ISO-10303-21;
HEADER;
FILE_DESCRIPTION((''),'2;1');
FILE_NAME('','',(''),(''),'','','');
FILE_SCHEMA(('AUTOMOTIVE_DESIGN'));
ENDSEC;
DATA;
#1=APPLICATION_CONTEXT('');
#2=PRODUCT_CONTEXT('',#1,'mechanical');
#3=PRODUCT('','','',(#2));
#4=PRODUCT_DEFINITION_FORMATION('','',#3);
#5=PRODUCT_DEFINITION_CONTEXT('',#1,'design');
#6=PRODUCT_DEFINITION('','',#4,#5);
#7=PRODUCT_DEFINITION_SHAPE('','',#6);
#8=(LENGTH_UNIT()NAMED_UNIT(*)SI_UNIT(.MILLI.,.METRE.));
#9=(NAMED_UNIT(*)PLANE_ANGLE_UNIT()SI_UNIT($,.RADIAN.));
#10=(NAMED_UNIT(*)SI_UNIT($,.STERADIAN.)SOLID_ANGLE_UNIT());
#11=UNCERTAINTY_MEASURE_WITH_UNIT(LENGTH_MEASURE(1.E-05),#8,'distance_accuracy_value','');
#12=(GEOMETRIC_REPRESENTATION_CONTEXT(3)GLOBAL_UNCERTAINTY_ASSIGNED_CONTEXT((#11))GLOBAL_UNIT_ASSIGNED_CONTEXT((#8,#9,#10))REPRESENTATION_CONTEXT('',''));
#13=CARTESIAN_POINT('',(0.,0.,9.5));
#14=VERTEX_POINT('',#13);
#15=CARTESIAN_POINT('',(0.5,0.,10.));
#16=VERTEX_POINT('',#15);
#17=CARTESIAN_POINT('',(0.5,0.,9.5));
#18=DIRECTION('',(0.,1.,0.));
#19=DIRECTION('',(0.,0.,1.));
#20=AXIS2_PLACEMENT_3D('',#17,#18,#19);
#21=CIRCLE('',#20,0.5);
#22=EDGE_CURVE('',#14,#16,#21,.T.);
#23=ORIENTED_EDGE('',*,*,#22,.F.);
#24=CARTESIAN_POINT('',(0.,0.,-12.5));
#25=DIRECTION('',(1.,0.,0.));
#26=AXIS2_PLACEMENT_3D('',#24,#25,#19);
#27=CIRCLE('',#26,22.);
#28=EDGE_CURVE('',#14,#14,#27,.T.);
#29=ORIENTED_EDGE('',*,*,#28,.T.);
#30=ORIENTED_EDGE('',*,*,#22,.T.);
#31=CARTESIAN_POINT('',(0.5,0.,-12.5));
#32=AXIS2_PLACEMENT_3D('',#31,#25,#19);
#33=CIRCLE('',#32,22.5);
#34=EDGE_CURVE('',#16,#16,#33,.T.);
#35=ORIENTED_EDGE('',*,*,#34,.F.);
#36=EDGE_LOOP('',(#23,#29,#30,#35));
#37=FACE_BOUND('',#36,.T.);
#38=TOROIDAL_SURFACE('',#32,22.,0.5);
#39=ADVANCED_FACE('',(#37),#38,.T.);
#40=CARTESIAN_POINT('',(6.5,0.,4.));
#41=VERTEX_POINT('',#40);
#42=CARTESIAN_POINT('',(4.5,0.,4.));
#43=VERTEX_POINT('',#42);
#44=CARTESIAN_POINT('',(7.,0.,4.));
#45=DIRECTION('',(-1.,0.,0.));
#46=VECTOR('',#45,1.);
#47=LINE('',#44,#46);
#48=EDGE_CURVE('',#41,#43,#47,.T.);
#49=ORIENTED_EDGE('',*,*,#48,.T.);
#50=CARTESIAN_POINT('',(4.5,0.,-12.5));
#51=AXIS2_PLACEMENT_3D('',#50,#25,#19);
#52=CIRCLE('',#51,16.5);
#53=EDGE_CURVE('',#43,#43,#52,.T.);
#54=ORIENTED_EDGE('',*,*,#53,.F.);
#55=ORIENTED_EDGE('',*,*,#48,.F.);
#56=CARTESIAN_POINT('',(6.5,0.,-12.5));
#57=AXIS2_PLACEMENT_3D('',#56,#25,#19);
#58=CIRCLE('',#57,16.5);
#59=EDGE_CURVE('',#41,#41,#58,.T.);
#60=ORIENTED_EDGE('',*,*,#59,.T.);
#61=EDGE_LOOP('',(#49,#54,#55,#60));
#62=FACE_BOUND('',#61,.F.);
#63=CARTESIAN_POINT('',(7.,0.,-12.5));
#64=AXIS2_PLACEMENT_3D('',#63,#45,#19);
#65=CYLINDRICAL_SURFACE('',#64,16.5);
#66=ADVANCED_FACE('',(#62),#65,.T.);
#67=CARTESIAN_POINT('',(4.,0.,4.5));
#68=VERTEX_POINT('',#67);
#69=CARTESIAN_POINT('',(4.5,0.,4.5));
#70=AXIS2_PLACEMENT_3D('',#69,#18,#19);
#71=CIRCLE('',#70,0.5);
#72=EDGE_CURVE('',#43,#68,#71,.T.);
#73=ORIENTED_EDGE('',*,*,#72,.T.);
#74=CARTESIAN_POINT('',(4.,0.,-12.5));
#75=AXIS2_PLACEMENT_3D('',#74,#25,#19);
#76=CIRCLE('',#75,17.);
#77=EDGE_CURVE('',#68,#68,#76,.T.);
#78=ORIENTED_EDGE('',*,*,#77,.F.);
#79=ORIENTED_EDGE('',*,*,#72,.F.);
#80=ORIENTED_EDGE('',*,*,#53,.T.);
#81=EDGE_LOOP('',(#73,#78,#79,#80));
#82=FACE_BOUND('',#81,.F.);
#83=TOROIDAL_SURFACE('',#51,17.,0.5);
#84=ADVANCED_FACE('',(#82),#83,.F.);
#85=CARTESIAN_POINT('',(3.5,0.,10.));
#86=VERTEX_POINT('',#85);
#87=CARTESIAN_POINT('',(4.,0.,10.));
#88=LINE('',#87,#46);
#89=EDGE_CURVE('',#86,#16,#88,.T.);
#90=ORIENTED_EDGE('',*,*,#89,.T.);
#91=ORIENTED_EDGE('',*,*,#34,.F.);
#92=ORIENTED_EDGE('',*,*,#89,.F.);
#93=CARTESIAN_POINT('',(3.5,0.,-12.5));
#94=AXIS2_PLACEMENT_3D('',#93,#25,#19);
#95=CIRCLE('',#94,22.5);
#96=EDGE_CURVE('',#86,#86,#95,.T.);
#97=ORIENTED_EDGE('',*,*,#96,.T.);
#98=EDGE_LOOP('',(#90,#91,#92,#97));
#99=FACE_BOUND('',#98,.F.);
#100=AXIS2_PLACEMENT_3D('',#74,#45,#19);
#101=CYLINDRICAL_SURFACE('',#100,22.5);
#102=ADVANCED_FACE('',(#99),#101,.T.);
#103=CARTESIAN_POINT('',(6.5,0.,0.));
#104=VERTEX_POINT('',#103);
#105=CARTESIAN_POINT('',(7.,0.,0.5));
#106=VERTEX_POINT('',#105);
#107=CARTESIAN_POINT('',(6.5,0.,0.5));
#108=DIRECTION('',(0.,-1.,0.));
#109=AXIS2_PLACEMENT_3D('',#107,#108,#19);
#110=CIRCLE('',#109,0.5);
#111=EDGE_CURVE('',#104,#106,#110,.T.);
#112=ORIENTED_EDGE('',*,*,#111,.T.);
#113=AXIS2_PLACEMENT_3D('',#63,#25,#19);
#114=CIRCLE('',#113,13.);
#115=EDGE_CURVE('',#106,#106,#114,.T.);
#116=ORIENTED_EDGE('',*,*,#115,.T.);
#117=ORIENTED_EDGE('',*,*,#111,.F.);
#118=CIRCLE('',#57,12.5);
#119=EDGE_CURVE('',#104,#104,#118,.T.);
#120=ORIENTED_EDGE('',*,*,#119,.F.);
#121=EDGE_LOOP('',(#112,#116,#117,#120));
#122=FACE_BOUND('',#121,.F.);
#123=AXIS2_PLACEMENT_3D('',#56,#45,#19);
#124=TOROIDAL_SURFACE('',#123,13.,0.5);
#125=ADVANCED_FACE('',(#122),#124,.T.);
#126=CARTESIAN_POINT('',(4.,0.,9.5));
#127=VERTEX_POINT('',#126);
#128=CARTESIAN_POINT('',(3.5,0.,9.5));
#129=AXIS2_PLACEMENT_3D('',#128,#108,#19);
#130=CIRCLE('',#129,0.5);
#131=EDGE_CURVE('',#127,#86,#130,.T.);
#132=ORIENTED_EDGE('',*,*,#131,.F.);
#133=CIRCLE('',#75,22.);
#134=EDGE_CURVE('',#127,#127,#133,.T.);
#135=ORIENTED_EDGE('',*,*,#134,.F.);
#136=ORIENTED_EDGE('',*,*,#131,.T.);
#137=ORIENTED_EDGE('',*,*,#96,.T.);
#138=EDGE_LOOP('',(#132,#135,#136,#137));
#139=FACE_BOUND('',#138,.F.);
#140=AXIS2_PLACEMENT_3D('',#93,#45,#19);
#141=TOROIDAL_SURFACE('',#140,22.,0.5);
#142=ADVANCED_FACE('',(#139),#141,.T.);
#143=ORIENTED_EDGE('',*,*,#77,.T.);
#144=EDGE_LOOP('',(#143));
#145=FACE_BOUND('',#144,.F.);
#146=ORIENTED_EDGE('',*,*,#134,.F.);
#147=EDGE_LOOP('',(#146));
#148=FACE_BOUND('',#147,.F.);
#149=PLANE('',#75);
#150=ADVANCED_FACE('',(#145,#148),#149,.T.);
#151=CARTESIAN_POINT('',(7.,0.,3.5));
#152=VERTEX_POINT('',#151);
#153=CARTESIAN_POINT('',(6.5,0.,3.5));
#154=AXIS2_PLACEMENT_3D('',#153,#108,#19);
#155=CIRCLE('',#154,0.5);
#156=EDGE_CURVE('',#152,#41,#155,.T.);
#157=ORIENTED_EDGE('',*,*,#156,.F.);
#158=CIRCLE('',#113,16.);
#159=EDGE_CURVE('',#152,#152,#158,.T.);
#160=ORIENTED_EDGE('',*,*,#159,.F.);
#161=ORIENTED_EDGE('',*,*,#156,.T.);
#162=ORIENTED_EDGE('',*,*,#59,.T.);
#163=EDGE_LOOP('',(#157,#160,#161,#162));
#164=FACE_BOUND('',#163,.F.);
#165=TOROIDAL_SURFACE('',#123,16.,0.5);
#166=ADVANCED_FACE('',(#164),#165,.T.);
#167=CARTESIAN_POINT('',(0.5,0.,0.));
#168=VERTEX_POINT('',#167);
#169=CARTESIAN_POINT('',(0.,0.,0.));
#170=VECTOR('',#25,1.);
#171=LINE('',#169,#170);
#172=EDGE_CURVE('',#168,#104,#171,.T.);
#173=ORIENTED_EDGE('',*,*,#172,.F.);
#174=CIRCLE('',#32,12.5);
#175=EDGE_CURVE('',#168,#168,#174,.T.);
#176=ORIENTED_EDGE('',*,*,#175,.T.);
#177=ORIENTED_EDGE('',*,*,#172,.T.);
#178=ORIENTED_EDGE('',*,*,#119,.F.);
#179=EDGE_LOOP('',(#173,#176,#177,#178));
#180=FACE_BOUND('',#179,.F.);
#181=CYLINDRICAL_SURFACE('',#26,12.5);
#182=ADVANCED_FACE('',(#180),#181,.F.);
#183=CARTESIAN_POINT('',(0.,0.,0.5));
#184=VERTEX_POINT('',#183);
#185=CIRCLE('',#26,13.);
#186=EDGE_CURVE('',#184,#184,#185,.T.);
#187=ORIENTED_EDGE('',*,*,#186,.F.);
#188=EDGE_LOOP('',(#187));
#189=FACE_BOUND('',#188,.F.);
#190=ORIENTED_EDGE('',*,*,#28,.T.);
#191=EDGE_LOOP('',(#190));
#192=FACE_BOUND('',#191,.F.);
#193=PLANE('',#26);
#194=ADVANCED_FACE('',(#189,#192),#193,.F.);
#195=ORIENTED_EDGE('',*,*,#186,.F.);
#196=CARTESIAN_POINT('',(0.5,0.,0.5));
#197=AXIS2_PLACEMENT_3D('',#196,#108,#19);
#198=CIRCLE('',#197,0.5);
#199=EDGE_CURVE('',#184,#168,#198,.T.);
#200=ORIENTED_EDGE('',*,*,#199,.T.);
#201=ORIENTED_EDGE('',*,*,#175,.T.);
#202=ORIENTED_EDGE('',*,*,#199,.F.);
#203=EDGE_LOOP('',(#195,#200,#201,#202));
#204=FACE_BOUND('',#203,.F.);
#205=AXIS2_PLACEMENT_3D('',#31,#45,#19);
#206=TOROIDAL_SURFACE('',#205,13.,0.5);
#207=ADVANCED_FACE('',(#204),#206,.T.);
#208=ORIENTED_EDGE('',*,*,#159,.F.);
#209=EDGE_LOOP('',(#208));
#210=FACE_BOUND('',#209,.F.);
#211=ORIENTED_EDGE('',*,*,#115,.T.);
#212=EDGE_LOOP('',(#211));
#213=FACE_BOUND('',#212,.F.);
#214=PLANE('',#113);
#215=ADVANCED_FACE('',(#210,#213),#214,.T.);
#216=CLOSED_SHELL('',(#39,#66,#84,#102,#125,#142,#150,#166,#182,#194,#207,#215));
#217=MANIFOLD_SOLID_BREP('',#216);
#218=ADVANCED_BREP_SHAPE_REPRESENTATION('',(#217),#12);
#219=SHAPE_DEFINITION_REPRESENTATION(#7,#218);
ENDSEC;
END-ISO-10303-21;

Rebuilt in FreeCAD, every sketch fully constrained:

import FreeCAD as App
import Part
import Sketcher
from FreeCAD import Vector
Q = App.Units.Quantity


def edges_at(feature, points):
    """Names of the edges that pass closest to the given points."""
    edges = feature.Shape.Edges
    near = lambda p: min(range(len(edges)), key=lambda i: edges[i].distToShape(Part.Vertex(*p))[0])
    return sorted({f"Edge{near(p) + 1}" for p in points})


def add_polygon(sketch, points):
    """Adds a closed chain of lines whose ends are joined by coincident constraints."""
    first, n = sketch.GeometryCount, len(points)
    for a, b in zip(points, points[1:] + points[:1]):
        sketch.addGeometry(Part.LineSegment(App.Vector(*a, 0), App.Vector(*b, 0)), False)
    for i in range(n):
        sketch.addConstraint(Sketcher.Constraint("Coincident", first + i, 2, first + (i + 1) % n, 1))

doc = App.newDocument("Part")
body = doc.addObject("PartDesign::Body", "Body")

# Sketch on XZ plane
sketch1 = body.newObject("Sketcher::SketchObject", "Sketch")
sketch1.AttachmentSupport = (doc.getObject("XZ_Plane"), [""])
sketch1.MapMode = "FlatFace"
add_polygon(sketch1, [(0, 10), (0, 0), (7, 0), (7, 4), (4, 4), (4, 10)])  # lines 0-5
sketch1.addGeometry(Part.LineSegment(Vector(0, -12.5, 0), Vector(7, -12.5, 0)), True)  # axis
sketch1.addConstraint([
    Sketcher.Constraint("Vertical", 0),
    Sketcher.Constraint("Horizontal", 1),
    Sketcher.Constraint("Vertical", 2),
    Sketcher.Constraint("Horizontal", 3),
    Sketcher.Constraint("Vertical", 4),
    Sketcher.Constraint("Horizontal", 5),
    Sketcher.Constraint("Horizontal", 6),
    Sketcher.Constraint("Coincident", 0, 2, -1, 1),
    Sketcher.Constraint("PointOnObject", 6, 1, -2),
    Sketcher.Constraint("Vertical", 2, 2, 6, 2),
    Sketcher.Constraint("Equal", 5, 2),
    Sketcher.Constraint("DistanceX", 1, 1, 1, 2, Q("7 mm")),
    Sketcher.Constraint("DistanceX", 3, 2, 3, 1, Q("3 mm")),
    Sketcher.Constraint("DistanceY", 0, 2, 0, 1, Q("10 mm")),
    Sketcher.Constraint("DistanceY", 6, 1, -1, 1, Q("12.5 mm")),
])
revolution = body.newObject("PartDesign::Revolution", "Revolution")
revolution.Profile = sketch1
revolution.ReferenceAxis = (sketch1, ["Axis0"])
revolution.Angle = 360
doc.recompute()

fillet = body.newObject("PartDesign::Fillet", "Fillet")
fillet.Base = (revolution, edges_at(revolution, [
    (7, 0, -29),
    (7, 0, -25),
    (4, 0, -35),
    (0, 0, -35),
    (0, 0, -25),
    (4, 0, -29),
]))
fillet.Radius = 0.5

doc.recompute()
